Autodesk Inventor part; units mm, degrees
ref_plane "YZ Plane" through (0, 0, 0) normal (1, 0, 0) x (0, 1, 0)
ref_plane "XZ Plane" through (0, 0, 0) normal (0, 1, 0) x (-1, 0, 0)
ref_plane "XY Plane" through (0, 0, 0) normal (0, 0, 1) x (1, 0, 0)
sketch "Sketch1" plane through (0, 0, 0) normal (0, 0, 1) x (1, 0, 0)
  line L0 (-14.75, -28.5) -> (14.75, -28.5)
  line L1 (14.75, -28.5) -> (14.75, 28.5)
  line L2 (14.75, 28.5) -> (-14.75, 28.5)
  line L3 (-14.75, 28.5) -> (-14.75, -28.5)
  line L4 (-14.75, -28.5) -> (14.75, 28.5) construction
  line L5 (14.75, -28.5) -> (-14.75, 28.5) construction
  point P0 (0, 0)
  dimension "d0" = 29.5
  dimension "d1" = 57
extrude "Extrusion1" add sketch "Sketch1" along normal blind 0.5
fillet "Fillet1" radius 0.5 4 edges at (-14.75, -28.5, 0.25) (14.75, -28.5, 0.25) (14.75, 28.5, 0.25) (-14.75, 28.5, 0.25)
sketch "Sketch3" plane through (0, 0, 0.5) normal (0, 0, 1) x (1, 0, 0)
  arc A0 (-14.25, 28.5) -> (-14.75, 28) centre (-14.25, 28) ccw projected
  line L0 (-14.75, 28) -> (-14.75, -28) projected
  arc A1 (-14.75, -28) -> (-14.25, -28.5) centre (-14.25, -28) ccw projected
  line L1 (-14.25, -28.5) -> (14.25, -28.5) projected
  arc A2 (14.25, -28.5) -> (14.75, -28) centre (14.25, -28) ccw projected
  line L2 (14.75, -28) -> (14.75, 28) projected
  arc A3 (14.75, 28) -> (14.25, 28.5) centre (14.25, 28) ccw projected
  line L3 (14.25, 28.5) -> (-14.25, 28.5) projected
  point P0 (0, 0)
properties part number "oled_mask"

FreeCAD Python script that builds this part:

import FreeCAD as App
import Part
import Sketcher
from FreeCAD import Vector


def edges_at(feature, points):
    """Names of the edges that pass closest to the given points."""
    edges = feature.Shape.Edges
    near = lambda p: min(range(len(edges)), key=lambda i: edges[i].distToShape(Part.Vertex(*p))[0])
    return sorted({f"Edge{near(p) + 1}" for p in points})

doc = App.newDocument("Part")
body = doc.addObject("PartDesign::Body", "Body")

sketch1 = body.newObject("Sketcher::SketchObject", "Sketch")
sketch1.AttachmentSupport = (doc.getObject("XY_Plane"), [""])
sketch1.MapMode = "FlatFace"
sketch1.addGeometry([
    Part.LineSegment(Vector(-15, 28, 0), Vector(-15, -28, 0)),
    Part.LineSegment(Vector(-15, -28, 0), Vector(15, -28, 0)),
    Part.LineSegment(Vector(15, -28, 0), Vector(15, 28, 0)),
    Part.LineSegment(Vector(15, 28, 0), Vector(-15, 28, 0)),
], False)
sketch1.addConstraint([
    Sketcher.Constraint("Coincident", 0, 2, 1, 1),
    Sketcher.Constraint("Coincident", 1, 2, 2, 1),
    Sketcher.Constraint("Coincident", 2, 2, 3, 1),
    Sketcher.Constraint("Coincident", 3, 2, 0, 1),
    Sketcher.Constraint("Vertical", 0),
    Sketcher.Constraint("Horizontal", 1),
    Sketcher.Constraint("Vertical", 2),
    Sketcher.Constraint("Horizontal", 3),
    Sketcher.Constraint("Symmetric", 0, 2, 2, 2, -1, 1),
    Sketcher.Constraint("DistanceY", 0, 2, 0, 1, 57.0),
    Sketcher.Constraint("DistanceX", 1, 1, 1, 2, 29.5),
])
pad1 = body.newObject("PartDesign::Pad", "Pad")
pad1.Profile = sketch1
pad1.Length = 0.5
doc.recompute()

fillet = body.newObject("PartDesign::Fillet", "Fillet")
fillet.Base = (pad1, edges_at(pad1, [
    (-14.75, -28.5, 0.25),
    (14.75, -28.5, 0.25),
    (14.75, 28.5, 0.25),
    (-14.75, 28.5, 0.25),
]))
fillet.Radius = 0.5

doc.recompute()
